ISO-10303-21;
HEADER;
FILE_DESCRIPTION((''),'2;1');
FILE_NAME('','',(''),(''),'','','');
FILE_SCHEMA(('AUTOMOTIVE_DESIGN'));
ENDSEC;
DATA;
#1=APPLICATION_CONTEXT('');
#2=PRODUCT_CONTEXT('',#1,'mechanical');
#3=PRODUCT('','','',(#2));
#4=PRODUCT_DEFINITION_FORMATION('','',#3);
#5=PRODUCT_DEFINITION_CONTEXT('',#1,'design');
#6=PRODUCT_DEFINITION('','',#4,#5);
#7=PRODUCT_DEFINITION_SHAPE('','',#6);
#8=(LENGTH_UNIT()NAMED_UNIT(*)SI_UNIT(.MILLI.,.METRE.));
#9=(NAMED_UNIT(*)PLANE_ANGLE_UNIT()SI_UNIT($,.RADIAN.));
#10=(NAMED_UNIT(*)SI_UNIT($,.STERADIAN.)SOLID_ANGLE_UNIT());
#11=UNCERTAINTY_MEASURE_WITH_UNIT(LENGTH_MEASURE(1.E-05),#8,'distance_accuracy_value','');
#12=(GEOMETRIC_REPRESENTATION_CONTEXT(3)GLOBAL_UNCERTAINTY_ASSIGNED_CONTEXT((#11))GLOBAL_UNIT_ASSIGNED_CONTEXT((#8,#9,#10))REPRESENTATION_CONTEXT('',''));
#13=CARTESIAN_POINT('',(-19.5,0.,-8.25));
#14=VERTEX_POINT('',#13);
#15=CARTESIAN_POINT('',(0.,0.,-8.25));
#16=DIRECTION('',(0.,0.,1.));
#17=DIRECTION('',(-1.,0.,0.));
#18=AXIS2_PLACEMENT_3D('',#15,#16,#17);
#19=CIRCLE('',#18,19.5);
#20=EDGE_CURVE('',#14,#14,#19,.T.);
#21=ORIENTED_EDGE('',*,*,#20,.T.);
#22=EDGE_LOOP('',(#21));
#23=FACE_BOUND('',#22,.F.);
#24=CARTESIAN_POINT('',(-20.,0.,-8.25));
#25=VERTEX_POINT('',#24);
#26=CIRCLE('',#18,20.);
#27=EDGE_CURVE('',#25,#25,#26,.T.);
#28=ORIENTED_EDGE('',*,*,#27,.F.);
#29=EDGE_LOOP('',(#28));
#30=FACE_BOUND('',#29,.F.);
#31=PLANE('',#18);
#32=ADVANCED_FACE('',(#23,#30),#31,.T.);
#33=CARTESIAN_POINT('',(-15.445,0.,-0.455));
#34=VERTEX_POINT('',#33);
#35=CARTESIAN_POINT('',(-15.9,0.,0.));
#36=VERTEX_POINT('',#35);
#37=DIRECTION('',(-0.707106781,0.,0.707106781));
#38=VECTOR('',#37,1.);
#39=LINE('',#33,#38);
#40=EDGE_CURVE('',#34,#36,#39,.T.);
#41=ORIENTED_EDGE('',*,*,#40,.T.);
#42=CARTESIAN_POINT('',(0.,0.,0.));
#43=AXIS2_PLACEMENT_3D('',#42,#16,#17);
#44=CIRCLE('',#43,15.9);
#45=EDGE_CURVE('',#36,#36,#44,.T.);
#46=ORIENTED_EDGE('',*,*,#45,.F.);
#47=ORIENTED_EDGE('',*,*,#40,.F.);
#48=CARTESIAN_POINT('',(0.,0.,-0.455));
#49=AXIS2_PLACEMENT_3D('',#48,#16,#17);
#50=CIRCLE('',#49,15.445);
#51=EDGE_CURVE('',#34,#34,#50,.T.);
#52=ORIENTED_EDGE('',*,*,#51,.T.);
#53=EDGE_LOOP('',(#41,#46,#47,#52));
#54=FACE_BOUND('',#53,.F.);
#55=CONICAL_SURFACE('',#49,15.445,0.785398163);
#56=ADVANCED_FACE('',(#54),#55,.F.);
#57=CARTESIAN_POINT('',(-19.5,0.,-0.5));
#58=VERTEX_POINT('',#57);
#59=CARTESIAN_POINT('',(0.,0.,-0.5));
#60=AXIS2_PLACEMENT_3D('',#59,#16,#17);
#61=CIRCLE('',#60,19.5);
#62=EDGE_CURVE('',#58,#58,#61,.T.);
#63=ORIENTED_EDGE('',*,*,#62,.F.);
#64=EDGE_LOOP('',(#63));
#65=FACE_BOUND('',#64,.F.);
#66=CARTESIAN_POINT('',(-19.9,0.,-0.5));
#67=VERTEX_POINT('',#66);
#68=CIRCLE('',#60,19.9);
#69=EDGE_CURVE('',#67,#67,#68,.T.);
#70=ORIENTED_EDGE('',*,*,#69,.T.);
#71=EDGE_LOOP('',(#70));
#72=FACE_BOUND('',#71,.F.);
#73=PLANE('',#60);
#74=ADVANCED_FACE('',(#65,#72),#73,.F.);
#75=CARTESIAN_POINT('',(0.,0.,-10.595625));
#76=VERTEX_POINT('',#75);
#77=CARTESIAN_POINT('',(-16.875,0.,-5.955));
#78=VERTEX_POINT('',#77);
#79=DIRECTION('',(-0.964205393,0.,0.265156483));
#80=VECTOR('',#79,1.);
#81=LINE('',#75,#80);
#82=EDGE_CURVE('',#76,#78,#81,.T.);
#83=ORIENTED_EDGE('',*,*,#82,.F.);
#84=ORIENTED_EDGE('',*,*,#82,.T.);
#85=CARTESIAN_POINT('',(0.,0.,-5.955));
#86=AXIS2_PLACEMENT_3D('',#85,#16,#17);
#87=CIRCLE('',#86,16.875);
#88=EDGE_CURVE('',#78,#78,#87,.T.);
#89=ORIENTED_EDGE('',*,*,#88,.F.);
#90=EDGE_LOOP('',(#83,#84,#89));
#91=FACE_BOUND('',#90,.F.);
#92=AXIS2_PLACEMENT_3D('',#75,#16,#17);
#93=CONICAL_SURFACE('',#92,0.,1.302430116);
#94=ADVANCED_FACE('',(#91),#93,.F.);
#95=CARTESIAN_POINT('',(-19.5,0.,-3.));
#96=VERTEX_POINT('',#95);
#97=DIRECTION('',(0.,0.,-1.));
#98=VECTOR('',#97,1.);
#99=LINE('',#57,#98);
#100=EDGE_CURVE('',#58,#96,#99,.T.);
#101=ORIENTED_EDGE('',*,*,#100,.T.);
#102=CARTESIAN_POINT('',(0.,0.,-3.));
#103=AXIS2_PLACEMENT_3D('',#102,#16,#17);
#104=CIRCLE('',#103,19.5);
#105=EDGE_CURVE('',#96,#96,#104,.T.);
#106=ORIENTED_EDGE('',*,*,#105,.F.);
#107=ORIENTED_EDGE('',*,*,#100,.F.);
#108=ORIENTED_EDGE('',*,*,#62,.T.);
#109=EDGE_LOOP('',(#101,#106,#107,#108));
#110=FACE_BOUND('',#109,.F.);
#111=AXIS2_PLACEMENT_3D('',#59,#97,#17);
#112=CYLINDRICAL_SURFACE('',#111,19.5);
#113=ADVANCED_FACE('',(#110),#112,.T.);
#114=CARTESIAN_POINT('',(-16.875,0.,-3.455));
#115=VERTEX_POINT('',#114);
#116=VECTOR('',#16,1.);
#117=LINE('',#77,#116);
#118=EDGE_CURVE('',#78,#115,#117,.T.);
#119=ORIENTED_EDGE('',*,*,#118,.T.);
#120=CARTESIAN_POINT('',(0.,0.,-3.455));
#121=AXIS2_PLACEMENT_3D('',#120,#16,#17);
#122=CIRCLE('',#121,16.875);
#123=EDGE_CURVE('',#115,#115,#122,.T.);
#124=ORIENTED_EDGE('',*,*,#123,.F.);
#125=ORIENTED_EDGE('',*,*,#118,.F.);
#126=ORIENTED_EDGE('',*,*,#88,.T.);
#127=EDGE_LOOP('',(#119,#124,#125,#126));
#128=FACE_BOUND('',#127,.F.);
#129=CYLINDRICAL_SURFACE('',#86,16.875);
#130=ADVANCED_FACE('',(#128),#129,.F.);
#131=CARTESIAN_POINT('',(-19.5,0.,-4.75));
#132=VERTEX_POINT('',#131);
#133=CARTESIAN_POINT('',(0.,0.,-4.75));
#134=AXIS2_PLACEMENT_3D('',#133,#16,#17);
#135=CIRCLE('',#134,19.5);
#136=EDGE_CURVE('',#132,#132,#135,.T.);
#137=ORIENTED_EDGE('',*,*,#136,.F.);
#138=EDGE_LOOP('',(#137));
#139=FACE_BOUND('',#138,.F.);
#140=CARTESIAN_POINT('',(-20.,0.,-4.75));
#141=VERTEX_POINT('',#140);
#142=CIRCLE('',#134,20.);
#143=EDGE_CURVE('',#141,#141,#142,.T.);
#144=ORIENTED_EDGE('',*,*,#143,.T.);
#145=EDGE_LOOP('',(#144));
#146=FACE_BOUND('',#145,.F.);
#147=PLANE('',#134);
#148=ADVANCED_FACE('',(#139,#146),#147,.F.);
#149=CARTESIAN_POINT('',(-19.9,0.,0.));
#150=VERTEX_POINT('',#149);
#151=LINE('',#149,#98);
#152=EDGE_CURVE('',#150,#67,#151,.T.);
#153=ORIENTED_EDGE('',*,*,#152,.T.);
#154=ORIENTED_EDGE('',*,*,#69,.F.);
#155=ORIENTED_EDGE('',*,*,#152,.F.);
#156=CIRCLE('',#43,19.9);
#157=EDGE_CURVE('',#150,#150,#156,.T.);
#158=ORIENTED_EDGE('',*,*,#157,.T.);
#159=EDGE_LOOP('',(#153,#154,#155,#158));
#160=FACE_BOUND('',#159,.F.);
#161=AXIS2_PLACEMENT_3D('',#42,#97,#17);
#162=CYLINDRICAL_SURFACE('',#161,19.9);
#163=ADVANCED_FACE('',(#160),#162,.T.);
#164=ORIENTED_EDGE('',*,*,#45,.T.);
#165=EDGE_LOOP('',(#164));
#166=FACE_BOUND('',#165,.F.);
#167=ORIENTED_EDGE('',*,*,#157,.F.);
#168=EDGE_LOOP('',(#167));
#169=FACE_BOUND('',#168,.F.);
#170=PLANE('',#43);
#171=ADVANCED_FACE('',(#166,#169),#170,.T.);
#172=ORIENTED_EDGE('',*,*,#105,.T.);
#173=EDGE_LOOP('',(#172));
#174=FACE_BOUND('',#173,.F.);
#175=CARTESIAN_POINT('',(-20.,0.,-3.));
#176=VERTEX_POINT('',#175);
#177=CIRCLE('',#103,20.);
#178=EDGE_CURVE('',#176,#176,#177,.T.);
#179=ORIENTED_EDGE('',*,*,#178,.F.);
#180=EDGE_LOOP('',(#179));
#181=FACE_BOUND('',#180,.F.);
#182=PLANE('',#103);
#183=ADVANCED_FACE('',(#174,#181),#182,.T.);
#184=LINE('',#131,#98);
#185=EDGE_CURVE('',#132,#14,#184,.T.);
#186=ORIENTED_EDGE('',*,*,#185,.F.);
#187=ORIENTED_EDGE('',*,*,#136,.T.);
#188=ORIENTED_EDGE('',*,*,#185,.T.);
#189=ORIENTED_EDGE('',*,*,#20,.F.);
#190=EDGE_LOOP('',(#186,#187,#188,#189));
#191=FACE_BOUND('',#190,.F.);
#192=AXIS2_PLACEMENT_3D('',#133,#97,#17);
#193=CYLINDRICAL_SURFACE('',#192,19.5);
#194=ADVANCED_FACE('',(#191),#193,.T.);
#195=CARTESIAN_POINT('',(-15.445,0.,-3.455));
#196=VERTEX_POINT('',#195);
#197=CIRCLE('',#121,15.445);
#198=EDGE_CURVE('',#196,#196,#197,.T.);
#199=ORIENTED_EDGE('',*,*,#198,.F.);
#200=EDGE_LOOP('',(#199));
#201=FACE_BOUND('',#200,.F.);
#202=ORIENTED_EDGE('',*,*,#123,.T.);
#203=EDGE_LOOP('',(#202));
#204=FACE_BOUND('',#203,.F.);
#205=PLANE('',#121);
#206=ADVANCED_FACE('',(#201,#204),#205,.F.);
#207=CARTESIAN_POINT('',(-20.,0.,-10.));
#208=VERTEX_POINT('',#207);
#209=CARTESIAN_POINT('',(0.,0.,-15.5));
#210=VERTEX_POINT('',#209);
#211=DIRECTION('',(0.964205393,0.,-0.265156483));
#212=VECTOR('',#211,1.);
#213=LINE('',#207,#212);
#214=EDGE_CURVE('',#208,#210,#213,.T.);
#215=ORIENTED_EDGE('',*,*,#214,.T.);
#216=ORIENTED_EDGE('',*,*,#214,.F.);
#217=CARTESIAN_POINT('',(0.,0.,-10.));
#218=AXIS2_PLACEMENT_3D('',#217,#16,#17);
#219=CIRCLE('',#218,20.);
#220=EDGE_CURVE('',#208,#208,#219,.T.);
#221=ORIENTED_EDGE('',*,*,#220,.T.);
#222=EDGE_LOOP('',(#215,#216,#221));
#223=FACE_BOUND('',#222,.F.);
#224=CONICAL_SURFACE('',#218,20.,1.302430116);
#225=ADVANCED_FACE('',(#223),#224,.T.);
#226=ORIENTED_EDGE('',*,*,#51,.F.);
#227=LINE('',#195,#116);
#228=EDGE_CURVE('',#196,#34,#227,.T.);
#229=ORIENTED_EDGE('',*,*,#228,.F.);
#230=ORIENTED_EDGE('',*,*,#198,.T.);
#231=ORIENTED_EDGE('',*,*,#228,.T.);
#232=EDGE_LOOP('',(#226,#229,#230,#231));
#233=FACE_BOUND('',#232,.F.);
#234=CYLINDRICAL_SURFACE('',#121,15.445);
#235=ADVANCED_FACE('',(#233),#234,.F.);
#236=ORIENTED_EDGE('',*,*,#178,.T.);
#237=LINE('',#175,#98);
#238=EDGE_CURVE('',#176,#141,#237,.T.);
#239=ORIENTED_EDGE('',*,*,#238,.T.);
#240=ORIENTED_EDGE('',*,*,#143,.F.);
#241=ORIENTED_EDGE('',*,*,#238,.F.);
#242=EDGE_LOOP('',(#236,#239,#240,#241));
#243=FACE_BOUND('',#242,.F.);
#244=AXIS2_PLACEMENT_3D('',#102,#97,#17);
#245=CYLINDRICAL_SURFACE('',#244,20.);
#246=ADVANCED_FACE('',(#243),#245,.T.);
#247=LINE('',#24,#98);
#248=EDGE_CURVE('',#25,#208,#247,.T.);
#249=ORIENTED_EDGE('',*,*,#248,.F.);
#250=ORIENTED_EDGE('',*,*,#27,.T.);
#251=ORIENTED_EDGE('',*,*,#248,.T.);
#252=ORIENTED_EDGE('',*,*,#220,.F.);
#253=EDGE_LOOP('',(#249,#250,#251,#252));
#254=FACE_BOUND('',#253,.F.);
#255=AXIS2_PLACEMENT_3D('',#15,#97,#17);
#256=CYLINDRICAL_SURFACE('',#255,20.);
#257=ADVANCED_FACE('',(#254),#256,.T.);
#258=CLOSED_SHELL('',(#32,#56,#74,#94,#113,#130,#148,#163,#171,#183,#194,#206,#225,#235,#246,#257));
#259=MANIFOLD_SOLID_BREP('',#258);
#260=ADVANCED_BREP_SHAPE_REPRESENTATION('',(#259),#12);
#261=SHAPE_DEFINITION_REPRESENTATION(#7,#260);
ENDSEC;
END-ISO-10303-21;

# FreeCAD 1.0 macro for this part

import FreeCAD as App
import Part
import Sketcher

V = App.Vector
Q = App.Units.Quantity

doc = App.newDocument("Part")
body = doc.addObject("PartDesign::Body", "Body")

sketch1 = body.newObject("Sketcher::SketchObject", "Sketch")
sketch1.AttachmentSupport = (doc.getObject("XZ_Plane"), [""])
sketch1.MapMode = "FlatFace"
sketch1.addGeometry([
    Part.LineSegment(V(-15.9, 0, 0), V(-19.9, 0, 0)),
    Part.LineSegment(V(-19.9, 0, 0), V(-19.9, -0.5, 0)),
    Part.LineSegment(V(-19.9, -0.5, 0), V(-19.5, -0.5, 0)),
    Part.LineSegment(V(-19.5, -0.5, 0), V(-19.5, -3, 0)),
    Part.LineSegment(V(-19.5, -3, 0), V(-20, -3, 0)),
    Part.LineSegment(V(-20, -3, 0), V(-20, -4.75, 0)),
    Part.LineSegment(V(-20, -4.75, 0), V(-19.5, -4.75, 0)),
    Part.LineSegment(V(-19.5, -4.75, 0), V(-19.5, -8.25, 0)),
    Part.LineSegment(V(-19.5, -8.25, 0), V(-20, -8.25, 0)),
    Part.LineSegment(V(-20, -8.25, 0), V(-20, -10, 0)),
    Part.LineSegment(V(-20, -10, 0), V(0, -15.5, 0)),
    Part.LineSegment(V(0, -15.5, 0), V(0, -10.595625, 0)),
    Part.LineSegment(V(0, -10.595625, 0), V(-16.875, -5.955, 0)),
    Part.LineSegment(V(-16.875, -5.955, 0), V(-16.875, -3.455, 0)),
    Part.LineSegment(V(-16.875, -3.455, 0), V(-15.445, -3.455, 0)),
    Part.LineSegment(V(-15.445, -3.455, 0), V(-15.445, -0.455, 0)),
    Part.LineSegment(V(-15.445, -0.455, 0), V(-15.9, 0, 0)),
], False)
sketch1.addConstraint([
    Sketcher.Constraint("Coincident", 0, 2, 1, 1),
    Sketcher.Constraint("Coincident", 1, 2, 2, 1),
    Sketcher.Constraint("Coincident", 2, 2, 3, 1),
    Sketcher.Constraint("Coincident", 3, 2, 4, 1),
    Sketcher.Constraint("Coincident", 4, 2, 5, 1),
    Sketcher.Constraint("Coincident", 5, 2, 6, 1),
    Sketcher.Constraint("Coincident", 6, 2, 7, 1),
    Sketcher.Constraint("Coincident", 7, 2, 8, 1),
    Sketcher.Constraint("Coincident", 8, 2, 9, 1),
    Sketcher.Constraint("Coincident", 9, 2, 10, 1),
    Sketcher.Constraint("Coincident", 10, 2, 11, 1),
    Sketcher.Constraint("Coincident", 11, 2, 12, 1),
    Sketcher.Constraint("Coincident", 12, 2, 13, 1),
    Sketcher.Constraint("Coincident", 13, 2, 14, 1),
    Sketcher.Constraint("Coincident", 14, 2, 15, 1),
    Sketcher.Constraint("Coincident", 15, 2, 16, 1),
    Sketcher.Constraint("Coincident", 16, 2, 0, 1),
    Sketcher.Constraint("Horizontal", 0),
    Sketcher.Constraint("Vertical", 1),
    Sketcher.Constraint("Horizontal", 2),
    Sketcher.Constraint("Vertical", 3),
    Sketcher.Constraint("Horizontal", 4),
    Sketcher.Constraint("Vertical", 5),
    Sketcher.Constraint("Horizontal", 6),
    Sketcher.Constraint("Vertical", 7),
    Sketcher.Constraint("Horizontal", 8),
    Sketcher.Constraint("Vertical", 9),
    Sketcher.Constraint("Vertical", 11),
    Sketcher.Constraint("Vertical", 13),
    Sketcher.Constraint("Horizontal", 14),
    Sketcher.Constraint("Vertical", 15),
    Sketcher.Constraint("PointOnObject", 0, 2, -1),
    Sketcher.Constraint("PointOnObject", 10, 2, -2),
    Sketcher.Constraint("Parallel", 10, 12),
    Sketcher.Constraint("Vertical", 3, 2, 6, 2),
    Sketcher.Constraint("Vertical", 5, 2, 8, 2),
    Sketcher.Constraint("Equal", 8, 1),
    Sketcher.Constraint("Equal", 5, 9),
    Sketcher.Constraint("Equal", 3, 13),
    Sketcher.Constraint("DistanceX", 0, 2, 0, 1, Q("4 mm")),
    Sketcher.Constraint("DistanceY", 15, 1, 15, 2, Q("3 mm")),
    Sketcher.Constraint("Angle", 16, Q("135 deg")),
    Sketcher.Constraint("DistanceX", 2, 1, 2, 2, Q("0.4 mm")),
    Sketcher.Constraint("DistanceX", 4, 2, 4, 1, Q("0.5 mm")),
    Sketcher.Constraint("DistanceY", 3, 2, 3, 1, Q("2.5 mm")),
    Sketcher.Constraint("DistanceY", 7, 2, 7, 1, Q("3.5 mm")),
    Sketcher.Constraint("DistanceX", 4, 2, -1, 1, Q("20 mm")),
    Sketcher.Constraint("DistanceY", 9, 2, -1, 1, Q("10 mm")),
    Sketcher.Constraint("DistanceX", 14, 1, 14, 2, Q("1.43 mm")),
    Sketcher.Constraint("DistanceY", 10, 2, -1, 1, Q("15.5 mm")),
    Sketcher.Constraint("DistanceX", 12, 2, -1, 1, Q("16.875 mm")),
])
revolution = body.newObject("PartDesign::Revolution", "Revolution")
revolution.Profile = sketch1
revolution.ReferenceAxis = (sketch1, ["V_Axis"])
revolution.Angle = 360

doc.recompute()
